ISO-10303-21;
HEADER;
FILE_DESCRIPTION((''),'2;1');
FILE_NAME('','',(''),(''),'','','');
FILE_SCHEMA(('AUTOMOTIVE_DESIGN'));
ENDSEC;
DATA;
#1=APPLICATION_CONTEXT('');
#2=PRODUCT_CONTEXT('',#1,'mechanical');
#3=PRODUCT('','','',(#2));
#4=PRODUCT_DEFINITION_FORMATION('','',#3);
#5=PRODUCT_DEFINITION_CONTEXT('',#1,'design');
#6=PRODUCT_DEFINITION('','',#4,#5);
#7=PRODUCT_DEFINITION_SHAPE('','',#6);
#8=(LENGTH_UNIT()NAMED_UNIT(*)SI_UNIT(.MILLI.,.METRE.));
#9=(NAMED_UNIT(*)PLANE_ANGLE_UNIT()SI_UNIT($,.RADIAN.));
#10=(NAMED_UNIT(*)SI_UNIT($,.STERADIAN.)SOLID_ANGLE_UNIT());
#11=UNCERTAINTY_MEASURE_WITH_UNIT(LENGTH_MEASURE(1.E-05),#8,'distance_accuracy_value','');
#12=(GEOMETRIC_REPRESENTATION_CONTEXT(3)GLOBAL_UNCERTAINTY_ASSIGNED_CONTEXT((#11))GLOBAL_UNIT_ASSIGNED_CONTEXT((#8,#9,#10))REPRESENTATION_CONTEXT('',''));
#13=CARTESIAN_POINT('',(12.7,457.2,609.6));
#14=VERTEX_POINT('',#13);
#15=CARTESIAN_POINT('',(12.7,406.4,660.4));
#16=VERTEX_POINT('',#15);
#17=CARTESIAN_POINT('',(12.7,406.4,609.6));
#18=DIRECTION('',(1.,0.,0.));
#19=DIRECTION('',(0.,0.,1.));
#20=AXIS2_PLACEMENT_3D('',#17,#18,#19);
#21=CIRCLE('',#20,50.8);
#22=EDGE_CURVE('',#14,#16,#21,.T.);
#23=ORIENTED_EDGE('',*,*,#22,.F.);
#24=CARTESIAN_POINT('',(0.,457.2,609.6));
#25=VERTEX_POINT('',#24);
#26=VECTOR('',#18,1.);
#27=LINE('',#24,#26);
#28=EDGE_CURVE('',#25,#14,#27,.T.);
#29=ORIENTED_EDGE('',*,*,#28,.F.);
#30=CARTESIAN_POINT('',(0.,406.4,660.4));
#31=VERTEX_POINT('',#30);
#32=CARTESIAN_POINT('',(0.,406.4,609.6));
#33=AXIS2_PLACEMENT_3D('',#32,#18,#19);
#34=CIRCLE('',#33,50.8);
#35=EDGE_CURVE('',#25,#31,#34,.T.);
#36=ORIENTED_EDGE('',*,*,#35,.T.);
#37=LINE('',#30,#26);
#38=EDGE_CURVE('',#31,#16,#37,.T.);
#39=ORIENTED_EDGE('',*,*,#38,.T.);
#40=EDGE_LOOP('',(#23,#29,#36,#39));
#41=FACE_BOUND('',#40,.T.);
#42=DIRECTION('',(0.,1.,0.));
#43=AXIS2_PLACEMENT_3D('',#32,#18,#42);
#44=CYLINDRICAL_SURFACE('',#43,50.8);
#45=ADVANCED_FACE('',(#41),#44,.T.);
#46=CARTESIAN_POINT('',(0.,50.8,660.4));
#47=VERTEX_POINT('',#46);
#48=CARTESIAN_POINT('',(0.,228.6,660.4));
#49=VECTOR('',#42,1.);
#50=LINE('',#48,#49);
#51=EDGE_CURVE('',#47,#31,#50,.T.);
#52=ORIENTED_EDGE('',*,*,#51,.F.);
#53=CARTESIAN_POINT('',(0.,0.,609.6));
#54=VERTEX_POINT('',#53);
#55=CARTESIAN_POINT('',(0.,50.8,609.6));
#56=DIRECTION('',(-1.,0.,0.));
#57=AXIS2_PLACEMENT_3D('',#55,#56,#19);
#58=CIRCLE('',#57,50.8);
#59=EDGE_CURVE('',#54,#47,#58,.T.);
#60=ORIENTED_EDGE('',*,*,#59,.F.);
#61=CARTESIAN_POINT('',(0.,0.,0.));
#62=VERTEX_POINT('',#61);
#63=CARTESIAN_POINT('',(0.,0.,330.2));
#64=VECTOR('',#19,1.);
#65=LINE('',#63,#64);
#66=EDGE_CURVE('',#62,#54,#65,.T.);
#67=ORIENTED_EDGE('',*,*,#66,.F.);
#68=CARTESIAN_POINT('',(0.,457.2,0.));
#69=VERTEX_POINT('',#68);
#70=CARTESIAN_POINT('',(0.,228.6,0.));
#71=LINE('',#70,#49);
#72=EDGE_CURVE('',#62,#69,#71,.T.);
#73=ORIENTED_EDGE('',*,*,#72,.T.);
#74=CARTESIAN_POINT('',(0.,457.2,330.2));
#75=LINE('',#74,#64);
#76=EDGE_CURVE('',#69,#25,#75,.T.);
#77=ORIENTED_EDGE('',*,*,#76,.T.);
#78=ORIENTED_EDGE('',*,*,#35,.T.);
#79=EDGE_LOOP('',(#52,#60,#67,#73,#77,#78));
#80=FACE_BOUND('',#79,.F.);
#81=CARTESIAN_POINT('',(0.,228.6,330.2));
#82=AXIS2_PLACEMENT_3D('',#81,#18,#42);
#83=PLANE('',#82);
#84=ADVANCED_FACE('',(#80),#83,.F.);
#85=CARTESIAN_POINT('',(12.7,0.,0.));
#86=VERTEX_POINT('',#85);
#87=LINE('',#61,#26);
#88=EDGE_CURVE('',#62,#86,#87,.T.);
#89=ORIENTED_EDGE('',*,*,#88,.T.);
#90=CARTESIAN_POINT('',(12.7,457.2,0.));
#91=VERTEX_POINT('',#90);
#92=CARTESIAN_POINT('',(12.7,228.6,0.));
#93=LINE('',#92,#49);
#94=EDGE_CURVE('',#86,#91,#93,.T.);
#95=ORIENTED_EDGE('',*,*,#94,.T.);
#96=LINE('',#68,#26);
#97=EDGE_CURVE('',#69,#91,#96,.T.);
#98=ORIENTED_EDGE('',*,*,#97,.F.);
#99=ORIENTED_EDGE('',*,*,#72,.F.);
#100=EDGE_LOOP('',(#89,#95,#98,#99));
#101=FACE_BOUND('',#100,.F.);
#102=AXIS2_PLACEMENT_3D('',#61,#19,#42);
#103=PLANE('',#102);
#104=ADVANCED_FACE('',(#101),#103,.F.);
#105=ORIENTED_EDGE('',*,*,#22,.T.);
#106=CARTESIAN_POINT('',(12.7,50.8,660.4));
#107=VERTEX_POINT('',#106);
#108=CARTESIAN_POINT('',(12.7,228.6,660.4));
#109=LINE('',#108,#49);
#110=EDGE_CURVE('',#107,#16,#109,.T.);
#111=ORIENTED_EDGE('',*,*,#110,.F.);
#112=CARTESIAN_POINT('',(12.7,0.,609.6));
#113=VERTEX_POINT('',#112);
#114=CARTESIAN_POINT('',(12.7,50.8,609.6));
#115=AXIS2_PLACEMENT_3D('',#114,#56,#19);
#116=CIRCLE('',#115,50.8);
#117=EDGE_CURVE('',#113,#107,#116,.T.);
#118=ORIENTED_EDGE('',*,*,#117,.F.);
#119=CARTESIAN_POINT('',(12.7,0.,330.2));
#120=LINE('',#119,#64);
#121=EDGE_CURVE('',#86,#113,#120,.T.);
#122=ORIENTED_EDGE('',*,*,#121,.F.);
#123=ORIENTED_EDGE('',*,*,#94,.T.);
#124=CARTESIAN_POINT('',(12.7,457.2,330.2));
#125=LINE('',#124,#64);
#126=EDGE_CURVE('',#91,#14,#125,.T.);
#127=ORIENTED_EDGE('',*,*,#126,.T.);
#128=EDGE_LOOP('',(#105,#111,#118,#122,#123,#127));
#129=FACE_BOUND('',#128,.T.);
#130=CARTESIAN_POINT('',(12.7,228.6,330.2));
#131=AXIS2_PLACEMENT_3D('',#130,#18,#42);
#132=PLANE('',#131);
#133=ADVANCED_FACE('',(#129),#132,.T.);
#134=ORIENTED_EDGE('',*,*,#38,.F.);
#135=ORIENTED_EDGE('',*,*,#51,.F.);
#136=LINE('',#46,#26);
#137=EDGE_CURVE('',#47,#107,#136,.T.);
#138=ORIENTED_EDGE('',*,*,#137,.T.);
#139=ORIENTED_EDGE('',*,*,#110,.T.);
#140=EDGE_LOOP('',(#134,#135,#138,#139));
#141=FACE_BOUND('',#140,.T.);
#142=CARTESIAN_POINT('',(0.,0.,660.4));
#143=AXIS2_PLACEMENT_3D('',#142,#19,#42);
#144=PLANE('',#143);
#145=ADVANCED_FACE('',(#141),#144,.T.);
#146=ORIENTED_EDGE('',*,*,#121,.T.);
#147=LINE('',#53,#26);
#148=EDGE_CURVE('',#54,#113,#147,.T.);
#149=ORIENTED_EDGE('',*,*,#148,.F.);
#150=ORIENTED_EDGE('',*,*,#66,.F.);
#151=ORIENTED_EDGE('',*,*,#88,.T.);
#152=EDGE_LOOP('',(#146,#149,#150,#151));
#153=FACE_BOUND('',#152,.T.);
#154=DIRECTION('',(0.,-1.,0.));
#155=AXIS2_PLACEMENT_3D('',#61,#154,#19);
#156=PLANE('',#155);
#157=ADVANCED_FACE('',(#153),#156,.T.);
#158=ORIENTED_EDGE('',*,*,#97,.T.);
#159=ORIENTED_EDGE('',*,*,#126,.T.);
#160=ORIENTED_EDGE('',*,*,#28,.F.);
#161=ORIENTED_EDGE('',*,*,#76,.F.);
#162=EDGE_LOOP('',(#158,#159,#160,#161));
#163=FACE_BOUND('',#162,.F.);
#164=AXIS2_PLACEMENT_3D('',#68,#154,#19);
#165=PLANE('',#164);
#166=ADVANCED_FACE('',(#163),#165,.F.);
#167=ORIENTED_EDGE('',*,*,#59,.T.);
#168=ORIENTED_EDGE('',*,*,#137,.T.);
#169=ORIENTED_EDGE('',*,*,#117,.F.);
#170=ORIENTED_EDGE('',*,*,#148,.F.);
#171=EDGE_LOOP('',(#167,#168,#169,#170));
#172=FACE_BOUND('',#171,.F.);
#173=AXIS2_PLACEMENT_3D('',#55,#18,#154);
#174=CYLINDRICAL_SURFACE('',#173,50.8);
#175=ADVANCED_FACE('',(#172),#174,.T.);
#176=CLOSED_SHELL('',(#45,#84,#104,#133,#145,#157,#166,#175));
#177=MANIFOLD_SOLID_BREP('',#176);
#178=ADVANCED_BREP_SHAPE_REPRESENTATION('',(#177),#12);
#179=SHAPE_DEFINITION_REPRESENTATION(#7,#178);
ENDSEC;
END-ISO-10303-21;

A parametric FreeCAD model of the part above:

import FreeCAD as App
import Part
import Sketcher
from FreeCAD import Vector
Q = App.Units.Quantity


def edges_at(feature, points):
    """Names of the edges that pass closest to the given points."""
    edges = feature.Shape.Edges
    near = lambda p: min(range(len(edges)), key=lambda i: edges[i].distToShape(Part.Vertex(*p))[0])
    return sorted({f"Edge{near(p) + 1}" for p in points})


def add_polygon(sketch, points):
    """Adds a closed chain of lines whose ends are joined by coincident constraints."""
    first, n = sketch.GeometryCount, len(points)
    for a, b in zip(points, points[1:] + points[:1]):
        sketch.addGeometry(Part.LineSegment(App.Vector(*a, 0), App.Vector(*b, 0)), False)
    for i in range(n):
        sketch.addConstraint(Sketcher.Constraint("Coincident", first + i, 2, first + (i + 1) % n, 1))

doc = App.newDocument("Part")
params = doc.addObject("Spreadsheet::Sheet", "Params")
for row, (alias, value) in enumerate([
    ("sketch1_width", "18 in"),
    ("sketch1_height", "26 in"),
    ("pad1_length", "0.5 in"),
    ("fillet_radius", "2 in"),
], start=1):
    params.set(f"A{row}", alias)
    params.set(f"B{row}", "=" + value)
    params.setAlias(f"B{row}", alias)

body = doc.addObject("PartDesign::Body", "Body")

# Sketch on YZ plane
sketch1 = doc.addObject("Sketcher::SketchObject", "Sketch")
body.addObject(sketch1)
sketch1.AttachmentSupport = (doc.YZ_Plane, [""])
sketch1.MapMode = "FlatFace"
add_polygon(sketch1, [(0, 660), (0, 0), (457, 0), (457, 660)])  # lines 0-3
sketch1.addConstraint(Sketcher.Constraint("Vertical", 0))
sketch1.addConstraint(Sketcher.Constraint("Horizontal", 1))
sketch1.addConstraint(Sketcher.Constraint("Vertical", 2))
sketch1.addConstraint(Sketcher.Constraint("Horizontal", 3))
sketch1.addConstraint(Sketcher.Constraint("Coincident", 0, 2, -1, 1))
sketch1.addConstraint(Sketcher.Constraint("DistanceX", 1, 1, 1, 2, Q("18 in")))
sketch1.addConstraint(Sketcher.Constraint("DistanceY", 0, 2, 0, 1, Q("26 in")))
sketch1.setExpression("Constraints[9]", "Params.sketch1_width")
sketch1.setExpression("Constraints[10]", "Params.sketch1_height")
pad1 = doc.addObject("PartDesign::Pad", "Pad")
body.addObject(pad1)
pad1.Profile = sketch1
pad1.setExpression("Length", "Params.pad1_length")
doc.recompute()

fillet = doc.addObject("PartDesign::Fillet", "Fillet")
body.addObject(fillet)
fillet.Base = (pad1, edges_at(pad1, [(6.35, 0, 660.4), (6.35, 457.2, 660.4)]))
fillet.setExpression("Radius", "Params.fillet_radius")

doc.recompute()
